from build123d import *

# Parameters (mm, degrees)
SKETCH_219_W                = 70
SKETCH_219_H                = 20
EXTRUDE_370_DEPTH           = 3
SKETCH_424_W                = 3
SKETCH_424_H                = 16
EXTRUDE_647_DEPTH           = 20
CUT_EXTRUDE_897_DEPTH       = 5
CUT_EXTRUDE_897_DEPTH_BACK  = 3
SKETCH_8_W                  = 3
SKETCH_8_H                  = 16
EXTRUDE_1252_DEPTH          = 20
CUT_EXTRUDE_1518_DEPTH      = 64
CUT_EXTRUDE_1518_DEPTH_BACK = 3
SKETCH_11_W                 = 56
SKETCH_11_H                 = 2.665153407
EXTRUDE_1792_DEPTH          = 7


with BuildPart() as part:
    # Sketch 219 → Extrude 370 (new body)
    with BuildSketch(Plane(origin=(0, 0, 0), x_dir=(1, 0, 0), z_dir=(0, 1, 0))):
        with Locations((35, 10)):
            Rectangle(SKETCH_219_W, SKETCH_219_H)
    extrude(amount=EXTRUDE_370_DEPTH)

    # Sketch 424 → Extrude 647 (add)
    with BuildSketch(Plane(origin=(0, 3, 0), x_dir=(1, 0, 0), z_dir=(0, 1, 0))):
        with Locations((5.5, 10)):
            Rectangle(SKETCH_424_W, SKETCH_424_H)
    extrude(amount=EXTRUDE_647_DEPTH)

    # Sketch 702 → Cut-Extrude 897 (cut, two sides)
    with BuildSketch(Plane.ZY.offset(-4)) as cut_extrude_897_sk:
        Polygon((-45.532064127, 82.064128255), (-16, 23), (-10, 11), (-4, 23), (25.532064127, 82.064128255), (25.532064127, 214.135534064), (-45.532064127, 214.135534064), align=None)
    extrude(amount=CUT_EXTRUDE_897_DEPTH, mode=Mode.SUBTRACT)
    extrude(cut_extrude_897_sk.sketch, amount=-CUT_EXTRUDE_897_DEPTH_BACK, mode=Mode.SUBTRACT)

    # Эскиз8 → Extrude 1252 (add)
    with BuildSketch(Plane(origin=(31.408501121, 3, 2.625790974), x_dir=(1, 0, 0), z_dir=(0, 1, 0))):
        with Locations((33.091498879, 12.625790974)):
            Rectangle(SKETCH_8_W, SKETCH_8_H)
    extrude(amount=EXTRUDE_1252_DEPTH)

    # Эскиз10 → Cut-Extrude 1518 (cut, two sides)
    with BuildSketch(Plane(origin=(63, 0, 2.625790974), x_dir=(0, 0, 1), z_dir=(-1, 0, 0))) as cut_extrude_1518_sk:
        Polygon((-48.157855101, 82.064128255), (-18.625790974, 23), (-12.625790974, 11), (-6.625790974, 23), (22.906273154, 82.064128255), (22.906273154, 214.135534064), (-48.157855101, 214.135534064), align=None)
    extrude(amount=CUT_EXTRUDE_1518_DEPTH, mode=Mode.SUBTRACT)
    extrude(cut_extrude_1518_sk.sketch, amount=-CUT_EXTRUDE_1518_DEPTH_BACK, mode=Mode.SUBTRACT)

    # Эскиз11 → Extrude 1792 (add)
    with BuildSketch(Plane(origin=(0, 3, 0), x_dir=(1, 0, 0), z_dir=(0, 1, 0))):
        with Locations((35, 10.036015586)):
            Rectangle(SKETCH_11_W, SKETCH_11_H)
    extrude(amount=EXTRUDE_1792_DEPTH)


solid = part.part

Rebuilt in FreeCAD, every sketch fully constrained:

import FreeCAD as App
import Part
import Sketcher

V = App.Vector
Q = App.Units.Quantity

doc = App.newDocument("Part")
body = doc.addObject("PartDesign::Body", "Body")

sketch1 = body.newObject("Sketcher::SketchObject", "Sketch")
sketch1.AttachmentSupport = (doc.getObject("XZ_Plane"), [""])
sketch1.MapMode = "FlatFace"
sketch1.addGeometry(Part.LineSegment(V(0, -20, 0), V(0, 0, 0)), False)
sketch1.addGeometry(Part.LineSegment(V(0, 0, 0), V(70, 0, 0)), False)
sketch1.addGeometry(Part.LineSegment(V(70, 0, 0), V(70, -20, 0)), False)
sketch1.addGeometry(Part.LineSegment(V(70, -20, 0), V(0, -20, 0)), False)
sketch1.addConstraint(Sketcher.Constraint("Coincident", 0, 2, 1, 1))
sketch1.addConstraint(Sketcher.Constraint("Coincident", 1, 2, 2, 1))
sketch1.addConstraint(Sketcher.Constraint("Coincident", 2, 2, 3, 1))
sketch1.addConstraint(Sketcher.Constraint("Coincident", 3, 2, 0, 1))
sketch1.addConstraint(Sketcher.Constraint("Vertical", 0))
sketch1.addConstraint(Sketcher.Constraint("Horizontal", 1))
sketch1.addConstraint(Sketcher.Constraint("Vertical", 2))
sketch1.addConstraint(Sketcher.Constraint("Horizontal", 3))
sketch1.addConstraint(Sketcher.Constraint("Coincident", 0, 2, -1, 1))
sketch1.addConstraint(Sketcher.Constraint("DistanceX", 1, 1, 1, 2, Q("70 mm")))
sketch1.addConstraint(Sketcher.Constraint("DistanceY", 0, 1, 0, 2, Q("20 mm")))
pad1 = body.newObject("PartDesign::Pad", "Pad")
pad1.Profile = sketch1
pad1.Length = 3
pad1.Reversed = True

sketch2 = body.newObject("Sketcher::SketchObject", "Sketch001")
sketch2.AttachmentSupport = (doc.getObject("XZ_Plane"), [""])
sketch2.MapMode = "FlatFace"
sketch2.AttachmentOffset = App.Placement(V(0, 0, -3), App.Rotation())
sketch2.addGeometry(Part.LineSegment(V(4, -18, 0), V(4, -2, 0)), False)
sketch2.addGeometry(Part.LineSegment(V(4, -2, 0), V(7, -2, 0)), False)
sketch2.addGeometry(Part.LineSegment(V(7, -2, 0), V(7, -18, 0)), False)
sketch2.addGeometry(Part.LineSegment(V(7, -18, 0), V(4, -18, 0)), False)
sketch2.addConstraint(Sketcher.Constraint("Coincident", 0, 2, 1, 1))
sketch2.addConstraint(Sketcher.Constraint("Coincident", 1, 2, 2, 1))
sketch2.addConstraint(Sketcher.Constraint("Coincident", 2, 2, 3, 1))
sketch2.addConstraint(Sketcher.Constraint("Coincident", 3, 2, 0, 1))
sketch2.addConstraint(Sketcher.Constraint("Vertical", 0))
sketch2.addConstraint(Sketcher.Constraint("Horizontal", 1))
sketch2.addConstraint(Sketcher.Constraint("Vertical", 2))
sketch2.addConstraint(Sketcher.Constraint("Horizontal", 3))
sketch2.addConstraint(Sketcher.Constraint("DistanceX", 1, 1, 1, 2, Q("3 mm")))
sketch2.addConstraint(Sketcher.Constraint("DistanceY", 0, 1, 0, 2, Q("16 mm")))
sketch2.addConstraint(Sketcher.Constraint("DistanceX", -1, 1, 0, 2, Q("4 mm")))
sketch2.addConstraint(Sketcher.Constraint("DistanceY", 0, 2, -1, 1, Q("2 mm")))
pad2 = body.newObject("PartDesign::Pad", "Pad001")
pad2.Profile = sketch2
pad2.Length = 20
pad2.Reversed = True

sketch3 = body.newObject("Sketcher::SketchObject", "Sketch002")
sketch3.AttachmentSupport = (doc.getObject("YZ_Plane"), [""])
sketch3.MapMode = "FlatFace"
sketch3.AttachmentOffset = App.Placement(V(0, 0, 4), App.Rotation())
sketch3.addGeometry(Part.LineSegment(V(82, -46, 0), V(23, -16, 0)), False)
sketch3.addGeometry(Part.LineSegment(V(23, -16, 0), V(11, -10, 0)), False)
sketch3.addGeometry(Part.LineSegment(V(11, -10, 0), V(23, -4, 0)), False)
sketch3.addGeometry(Part.LineSegment(V(23, -4, 0), V(82, 26, 0)), False)
sketch3.addGeometry(Part.LineSegment(V(82, 26, 0), V(214, 26, 0)), False)
sketch3.addGeometry(Part.LineSegment(V(214, 26, 0), V(214, -46, 0)), False)
sketch3.addGeometry(Part.LineSegment(V(214, -46, 0), V(82, -46, 0)), False)
sketch3.addConstraint(Sketcher.Constraint("Coincident", 0, 2, 1, 1))
sketch3.addConstraint(Sketcher.Constraint("Coincident", 1, 2, 2, 1))
sketch3.addConstraint(Sketcher.Constraint("Coincident", 2, 2, 3, 1))
sketch3.addConstraint(Sketcher.Constraint("Coincident", 3, 2, 4, 1))
sketch3.addConstraint(Sketcher.Constraint("Coincident", 4, 2, 5, 1))
sketch3.addConstraint(Sketcher.Constraint("Coincident", 5, 2, 6, 1))
sketch3.addConstraint(Sketcher.Constraint("Coincident", 6, 2, 0, 1))
sketch3.addConstraint(Sketcher.Constraint("Horizontal", 4))
sketch3.addConstraint(Sketcher.Constraint("Vertical", 5))
sketch3.addConstraint(Sketcher.Constraint("Horizontal", 6))
sketch3.addConstraint(Sketcher.Constraint("Parallel", 0, 1))
sketch3.addConstraint(Sketcher.Constraint("Parallel", 2, 3))
sketch3.addConstraint(Sketcher.Constraint("Vertical", 0, 2, 2, 2))
sketch3.addConstraint(Sketcher.Constraint("Vertical", 3, 2, 6, 2))
sketch3.addConstraint(Sketcher.Constraint("Equal", 1, 2))
sketch3.addConstraint(Sketcher.Constraint("DistanceX", -1, 1, 0, 2, Q("23 mm")))
sketch3.addConstraint(Sketcher.Constraint("DistanceY", 0, 2, -1, 1, Q("16 mm")))
sketch3.addConstraint(Sketcher.Constraint("DistanceX", -1, 1, 1, 2, Q("11 mm")))
sketch3.addConstraint(Sketcher.Constraint("DistanceY", 1, 2, -1, 1, Q("10 mm")))
sketch3.addConstraint(Sketcher.Constraint("DistanceY", 5, 2, 5, 1, Q("71.064128 mm")))
sketch3.addConstraint(Sketcher.Constraint("DistanceX", 4, 1, 4, 2, Q("132.071406 mm")))
pocket1 = body.newObject("PartDesign::Pocket", "Pocket")
pocket1.Profile = sketch3
pocket1.Type = "ThroughAll"
pocket1.Midplane = True

sketch4 = body.newObject("Sketcher::SketchObject", "Sketch003")
sketch4.AttachmentSupport = (doc.getObject("XZ_Plane"), [""])
sketch4.MapMode = "FlatFace"
sketch4.AttachmentOffset = App.Placement(V(0, 0, -3), App.Rotation())
sketch4.addGeometry(Part.LineSegment(V(63, -18, 0), V(63, -2, 0)), False)
sketch4.addGeometry(Part.LineSegment(V(63, -2, 0), V(66, -2, 0)), False)
sketch4.addGeometry(Part.LineSegment(V(66, -2, 0), V(66, -18, 0)), False)
sketch4.addGeometry(Part.LineSegment(V(66, -18, 0), V(63, -18, 0)), False)
sketch4.addConstraint(Sketcher.Constraint("Coincident", 0, 2, 1, 1))
sketch4.addConstraint(Sketcher.Constraint("Coincident", 1, 2, 2, 1))
sketch4.addConstraint(Sketcher.Constraint("Coincident", 2, 2, 3, 1))
sketch4.addConstraint(Sketcher.Constraint("Coincident", 3, 2, 0, 1))
sketch4.addConstraint(Sketcher.Constraint("Vertical", 0))
sketch4.addConstraint(Sketcher.Constraint("Horizontal", 1))
sketch4.addConstraint(Sketcher.Constraint("Vertical", 2))
sketch4.addConstraint(Sketcher.Constraint("Horizontal", 3))
sketch4.addConstraint(Sketcher.Constraint("DistanceX", 1, 1, 1, 2, Q("3 mm")))
sketch4.addConstraint(Sketcher.Constraint("DistanceY", 0, 1, 0, 2, Q("16 mm")))
sketch4.addConstraint(Sketcher.Constraint("DistanceX", -1, 1, 0, 2, Q("63 mm")))
sketch4.addConstraint(Sketcher.Constraint("DistanceY", 0, 2, -1, 1, Q("2 mm")))
pad3 = body.newObject("PartDesign::Pad", "Pad002")
pad3.Profile = sketch4
pad3.Length = 20
pad3.Reversed = True

sketch5 = body.newObject("Sketcher::SketchObject", "Sketch004")
sketch5.AttachmentSupport = (doc.getObject("YZ_Plane"), [""])
sketch5.MapMode = "FlatFace"
sketch5.AttachmentOffset = App.Placement(V(0, 0, 63), App.Rotation())
sketch5.addGeometry(Part.LineSegment(V(82, -46, 0), V(23, -16, 0)), False)
sketch5.addGeometry(Part.LineSegment(V(23, -16, 0), V(11, -10, 0)), False)
sketch5.addGeometry(Part.LineSegment(V(11, -10, 0), V(23, -4, 0)), False)
sketch5.addGeometry(Part.LineSegment(V(23, -4, 0), V(82, 26, 0)), False)
sketch5.addGeometry(Part.LineSegment(V(82, 26, 0), V(214, 26, 0)), False)
sketch5.addGeometry(Part.LineSegment(V(214, 26, 0), V(214, -46, 0)), False)
sketch5.addGeometry(Part.LineSegment(V(214, -46, 0), V(82, -46, 0)), False)
sketch5.addConstraint(Sketcher.Constraint("Coincident", 0, 2, 1, 1))
sketch5.addConstraint(Sketcher.Constraint("Coincident", 1, 2, 2, 1))
sketch5.addConstraint(Sketcher.Constraint("Coincident", 2, 2, 3, 1))
sketch5.addConstraint(Sketcher.Constraint("Coincident", 3, 2, 4, 1))
sketch5.addConstraint(Sketcher.Constraint("Coincident", 4, 2, 5, 1))
sketch5.addConstraint(Sketcher.Constraint("Coincident", 5, 2, 6, 1))
sketch5.addConstraint(Sketcher.Constraint("Coincident", 6, 2, 0, 1))
sketch5.addConstraint(Sketcher.Constraint("Horizontal", 4))
sketch5.addConstraint(Sketcher.Constraint("Vertical", 5))
sketch5.addConstraint(Sketcher.Constraint("Horizontal", 6))
sketch5.addConstraint(Sketcher.Constraint("Parallel", 0, 1))
sketch5.addConstraint(Sketcher.Constraint("Parallel", 2, 3))
sketch5.addConstraint(Sketcher.Constraint("Vertical", 0, 2, 2, 2))
sketch5.addConstraint(Sketcher.Constraint("Vertical", 3, 2, 6, 2))
sketch5.addConstraint(Sketcher.Constraint("Equal", 1, 2))
sketch5.addConstraint(Sketcher.Constraint("DistanceX", -1, 1, 0, 2, Q("23 mm")))
sketch5.addConstraint(Sketcher.Constraint("DistanceY", 0, 2, -1, 1, Q("16 mm")))
sketch5.addConstraint(Sketcher.Constraint("DistanceX", -1, 1, 1, 2, Q("11 mm")))
sketch5.addConstraint(Sketcher.Constraint("DistanceY", 1, 2, -1, 1, Q("10 mm")))
sketch5.addConstraint(Sketcher.Constraint("DistanceY", 5, 2, 5, 1, Q("71.064128 mm")))
sketch5.addConstraint(Sketcher.Constraint("DistanceX", 4, 1, 4, 2, Q("132.071406 mm")))
pocket2 = body.newObject("PartDesign::Pocket", "Pocket001")
pocket2.Profile = sketch5
pocket2.Type = "ThroughAll"
pocket2.Midplane = True

sketch6 = body.newObject("Sketcher::SketchObject", "Sketch005")
sketch6.AttachmentSupport = (doc.getObject("XZ_Plane"), [""])
sketch6.MapMode = "FlatFace"
sketch6.AttachmentOffset = App.Placement(V(0, 0, -3), App.Rotation())
sketch6.addGeometry(Part.LineSegment(V(7, -11.4, 0), V(7, -8.7, 0)), False)
sketch6.addGeometry(Part.LineSegment(V(7, -8.7, 0), V(63, -8.7, 0)), False)
sketch6.addGeometry(Part.LineSegment(V(63, -8.7, 0), V(63, -11.4, 0)), False)
sketch6.addGeometry(Part.LineSegment(V(63, -11.4, 0), V(7, -11.4, 0)), False)
sketch6.addConstraint(Sketcher.Constraint("Coincident", 0, 2, 1, 1))
sketch6.addConstraint(Sketcher.Constraint("Coincident", 1, 2, 2, 1))
sketch6.addConstraint(Sketcher.Constraint("Coincident", 2, 2, 3, 1))
sketch6.addConstraint(Sketcher.Constraint("Coincident", 3, 2, 0, 1))
sketch6.addConstraint(Sketcher.Constraint("Vertical", 0))
sketch6.addConstraint(Sketcher.Constraint("Horizontal", 1))
sketch6.addConstraint(Sketcher.Constraint("Vertical", 2))
sketch6.addConstraint(Sketcher.Constraint("Horizontal", 3))
sketch6.addConstraint(Sketcher.Constraint("DistanceX", 1, 1, 1, 2, Q("56 mm")))
sketch6.addConstraint(Sketcher.Constraint("DistanceX", -1, 1, 0, 2, Q("7 mm")))
sketch6.addConstraint(Sketcher.Constraint("DistanceY", 0, 1, 0, 2, Q("2.665153 mm")))
sketch6.addConstraint(Sketcher.Constraint("DistanceY", 0, 2, -1, 1, Q("8.703439 mm")))
pad4 = body.newObject("PartDesign::Pad", "Pad003")
pad4.Profile = sketch6
pad4.Length = 7
pad4.Reversed = True

doc.recompute()
